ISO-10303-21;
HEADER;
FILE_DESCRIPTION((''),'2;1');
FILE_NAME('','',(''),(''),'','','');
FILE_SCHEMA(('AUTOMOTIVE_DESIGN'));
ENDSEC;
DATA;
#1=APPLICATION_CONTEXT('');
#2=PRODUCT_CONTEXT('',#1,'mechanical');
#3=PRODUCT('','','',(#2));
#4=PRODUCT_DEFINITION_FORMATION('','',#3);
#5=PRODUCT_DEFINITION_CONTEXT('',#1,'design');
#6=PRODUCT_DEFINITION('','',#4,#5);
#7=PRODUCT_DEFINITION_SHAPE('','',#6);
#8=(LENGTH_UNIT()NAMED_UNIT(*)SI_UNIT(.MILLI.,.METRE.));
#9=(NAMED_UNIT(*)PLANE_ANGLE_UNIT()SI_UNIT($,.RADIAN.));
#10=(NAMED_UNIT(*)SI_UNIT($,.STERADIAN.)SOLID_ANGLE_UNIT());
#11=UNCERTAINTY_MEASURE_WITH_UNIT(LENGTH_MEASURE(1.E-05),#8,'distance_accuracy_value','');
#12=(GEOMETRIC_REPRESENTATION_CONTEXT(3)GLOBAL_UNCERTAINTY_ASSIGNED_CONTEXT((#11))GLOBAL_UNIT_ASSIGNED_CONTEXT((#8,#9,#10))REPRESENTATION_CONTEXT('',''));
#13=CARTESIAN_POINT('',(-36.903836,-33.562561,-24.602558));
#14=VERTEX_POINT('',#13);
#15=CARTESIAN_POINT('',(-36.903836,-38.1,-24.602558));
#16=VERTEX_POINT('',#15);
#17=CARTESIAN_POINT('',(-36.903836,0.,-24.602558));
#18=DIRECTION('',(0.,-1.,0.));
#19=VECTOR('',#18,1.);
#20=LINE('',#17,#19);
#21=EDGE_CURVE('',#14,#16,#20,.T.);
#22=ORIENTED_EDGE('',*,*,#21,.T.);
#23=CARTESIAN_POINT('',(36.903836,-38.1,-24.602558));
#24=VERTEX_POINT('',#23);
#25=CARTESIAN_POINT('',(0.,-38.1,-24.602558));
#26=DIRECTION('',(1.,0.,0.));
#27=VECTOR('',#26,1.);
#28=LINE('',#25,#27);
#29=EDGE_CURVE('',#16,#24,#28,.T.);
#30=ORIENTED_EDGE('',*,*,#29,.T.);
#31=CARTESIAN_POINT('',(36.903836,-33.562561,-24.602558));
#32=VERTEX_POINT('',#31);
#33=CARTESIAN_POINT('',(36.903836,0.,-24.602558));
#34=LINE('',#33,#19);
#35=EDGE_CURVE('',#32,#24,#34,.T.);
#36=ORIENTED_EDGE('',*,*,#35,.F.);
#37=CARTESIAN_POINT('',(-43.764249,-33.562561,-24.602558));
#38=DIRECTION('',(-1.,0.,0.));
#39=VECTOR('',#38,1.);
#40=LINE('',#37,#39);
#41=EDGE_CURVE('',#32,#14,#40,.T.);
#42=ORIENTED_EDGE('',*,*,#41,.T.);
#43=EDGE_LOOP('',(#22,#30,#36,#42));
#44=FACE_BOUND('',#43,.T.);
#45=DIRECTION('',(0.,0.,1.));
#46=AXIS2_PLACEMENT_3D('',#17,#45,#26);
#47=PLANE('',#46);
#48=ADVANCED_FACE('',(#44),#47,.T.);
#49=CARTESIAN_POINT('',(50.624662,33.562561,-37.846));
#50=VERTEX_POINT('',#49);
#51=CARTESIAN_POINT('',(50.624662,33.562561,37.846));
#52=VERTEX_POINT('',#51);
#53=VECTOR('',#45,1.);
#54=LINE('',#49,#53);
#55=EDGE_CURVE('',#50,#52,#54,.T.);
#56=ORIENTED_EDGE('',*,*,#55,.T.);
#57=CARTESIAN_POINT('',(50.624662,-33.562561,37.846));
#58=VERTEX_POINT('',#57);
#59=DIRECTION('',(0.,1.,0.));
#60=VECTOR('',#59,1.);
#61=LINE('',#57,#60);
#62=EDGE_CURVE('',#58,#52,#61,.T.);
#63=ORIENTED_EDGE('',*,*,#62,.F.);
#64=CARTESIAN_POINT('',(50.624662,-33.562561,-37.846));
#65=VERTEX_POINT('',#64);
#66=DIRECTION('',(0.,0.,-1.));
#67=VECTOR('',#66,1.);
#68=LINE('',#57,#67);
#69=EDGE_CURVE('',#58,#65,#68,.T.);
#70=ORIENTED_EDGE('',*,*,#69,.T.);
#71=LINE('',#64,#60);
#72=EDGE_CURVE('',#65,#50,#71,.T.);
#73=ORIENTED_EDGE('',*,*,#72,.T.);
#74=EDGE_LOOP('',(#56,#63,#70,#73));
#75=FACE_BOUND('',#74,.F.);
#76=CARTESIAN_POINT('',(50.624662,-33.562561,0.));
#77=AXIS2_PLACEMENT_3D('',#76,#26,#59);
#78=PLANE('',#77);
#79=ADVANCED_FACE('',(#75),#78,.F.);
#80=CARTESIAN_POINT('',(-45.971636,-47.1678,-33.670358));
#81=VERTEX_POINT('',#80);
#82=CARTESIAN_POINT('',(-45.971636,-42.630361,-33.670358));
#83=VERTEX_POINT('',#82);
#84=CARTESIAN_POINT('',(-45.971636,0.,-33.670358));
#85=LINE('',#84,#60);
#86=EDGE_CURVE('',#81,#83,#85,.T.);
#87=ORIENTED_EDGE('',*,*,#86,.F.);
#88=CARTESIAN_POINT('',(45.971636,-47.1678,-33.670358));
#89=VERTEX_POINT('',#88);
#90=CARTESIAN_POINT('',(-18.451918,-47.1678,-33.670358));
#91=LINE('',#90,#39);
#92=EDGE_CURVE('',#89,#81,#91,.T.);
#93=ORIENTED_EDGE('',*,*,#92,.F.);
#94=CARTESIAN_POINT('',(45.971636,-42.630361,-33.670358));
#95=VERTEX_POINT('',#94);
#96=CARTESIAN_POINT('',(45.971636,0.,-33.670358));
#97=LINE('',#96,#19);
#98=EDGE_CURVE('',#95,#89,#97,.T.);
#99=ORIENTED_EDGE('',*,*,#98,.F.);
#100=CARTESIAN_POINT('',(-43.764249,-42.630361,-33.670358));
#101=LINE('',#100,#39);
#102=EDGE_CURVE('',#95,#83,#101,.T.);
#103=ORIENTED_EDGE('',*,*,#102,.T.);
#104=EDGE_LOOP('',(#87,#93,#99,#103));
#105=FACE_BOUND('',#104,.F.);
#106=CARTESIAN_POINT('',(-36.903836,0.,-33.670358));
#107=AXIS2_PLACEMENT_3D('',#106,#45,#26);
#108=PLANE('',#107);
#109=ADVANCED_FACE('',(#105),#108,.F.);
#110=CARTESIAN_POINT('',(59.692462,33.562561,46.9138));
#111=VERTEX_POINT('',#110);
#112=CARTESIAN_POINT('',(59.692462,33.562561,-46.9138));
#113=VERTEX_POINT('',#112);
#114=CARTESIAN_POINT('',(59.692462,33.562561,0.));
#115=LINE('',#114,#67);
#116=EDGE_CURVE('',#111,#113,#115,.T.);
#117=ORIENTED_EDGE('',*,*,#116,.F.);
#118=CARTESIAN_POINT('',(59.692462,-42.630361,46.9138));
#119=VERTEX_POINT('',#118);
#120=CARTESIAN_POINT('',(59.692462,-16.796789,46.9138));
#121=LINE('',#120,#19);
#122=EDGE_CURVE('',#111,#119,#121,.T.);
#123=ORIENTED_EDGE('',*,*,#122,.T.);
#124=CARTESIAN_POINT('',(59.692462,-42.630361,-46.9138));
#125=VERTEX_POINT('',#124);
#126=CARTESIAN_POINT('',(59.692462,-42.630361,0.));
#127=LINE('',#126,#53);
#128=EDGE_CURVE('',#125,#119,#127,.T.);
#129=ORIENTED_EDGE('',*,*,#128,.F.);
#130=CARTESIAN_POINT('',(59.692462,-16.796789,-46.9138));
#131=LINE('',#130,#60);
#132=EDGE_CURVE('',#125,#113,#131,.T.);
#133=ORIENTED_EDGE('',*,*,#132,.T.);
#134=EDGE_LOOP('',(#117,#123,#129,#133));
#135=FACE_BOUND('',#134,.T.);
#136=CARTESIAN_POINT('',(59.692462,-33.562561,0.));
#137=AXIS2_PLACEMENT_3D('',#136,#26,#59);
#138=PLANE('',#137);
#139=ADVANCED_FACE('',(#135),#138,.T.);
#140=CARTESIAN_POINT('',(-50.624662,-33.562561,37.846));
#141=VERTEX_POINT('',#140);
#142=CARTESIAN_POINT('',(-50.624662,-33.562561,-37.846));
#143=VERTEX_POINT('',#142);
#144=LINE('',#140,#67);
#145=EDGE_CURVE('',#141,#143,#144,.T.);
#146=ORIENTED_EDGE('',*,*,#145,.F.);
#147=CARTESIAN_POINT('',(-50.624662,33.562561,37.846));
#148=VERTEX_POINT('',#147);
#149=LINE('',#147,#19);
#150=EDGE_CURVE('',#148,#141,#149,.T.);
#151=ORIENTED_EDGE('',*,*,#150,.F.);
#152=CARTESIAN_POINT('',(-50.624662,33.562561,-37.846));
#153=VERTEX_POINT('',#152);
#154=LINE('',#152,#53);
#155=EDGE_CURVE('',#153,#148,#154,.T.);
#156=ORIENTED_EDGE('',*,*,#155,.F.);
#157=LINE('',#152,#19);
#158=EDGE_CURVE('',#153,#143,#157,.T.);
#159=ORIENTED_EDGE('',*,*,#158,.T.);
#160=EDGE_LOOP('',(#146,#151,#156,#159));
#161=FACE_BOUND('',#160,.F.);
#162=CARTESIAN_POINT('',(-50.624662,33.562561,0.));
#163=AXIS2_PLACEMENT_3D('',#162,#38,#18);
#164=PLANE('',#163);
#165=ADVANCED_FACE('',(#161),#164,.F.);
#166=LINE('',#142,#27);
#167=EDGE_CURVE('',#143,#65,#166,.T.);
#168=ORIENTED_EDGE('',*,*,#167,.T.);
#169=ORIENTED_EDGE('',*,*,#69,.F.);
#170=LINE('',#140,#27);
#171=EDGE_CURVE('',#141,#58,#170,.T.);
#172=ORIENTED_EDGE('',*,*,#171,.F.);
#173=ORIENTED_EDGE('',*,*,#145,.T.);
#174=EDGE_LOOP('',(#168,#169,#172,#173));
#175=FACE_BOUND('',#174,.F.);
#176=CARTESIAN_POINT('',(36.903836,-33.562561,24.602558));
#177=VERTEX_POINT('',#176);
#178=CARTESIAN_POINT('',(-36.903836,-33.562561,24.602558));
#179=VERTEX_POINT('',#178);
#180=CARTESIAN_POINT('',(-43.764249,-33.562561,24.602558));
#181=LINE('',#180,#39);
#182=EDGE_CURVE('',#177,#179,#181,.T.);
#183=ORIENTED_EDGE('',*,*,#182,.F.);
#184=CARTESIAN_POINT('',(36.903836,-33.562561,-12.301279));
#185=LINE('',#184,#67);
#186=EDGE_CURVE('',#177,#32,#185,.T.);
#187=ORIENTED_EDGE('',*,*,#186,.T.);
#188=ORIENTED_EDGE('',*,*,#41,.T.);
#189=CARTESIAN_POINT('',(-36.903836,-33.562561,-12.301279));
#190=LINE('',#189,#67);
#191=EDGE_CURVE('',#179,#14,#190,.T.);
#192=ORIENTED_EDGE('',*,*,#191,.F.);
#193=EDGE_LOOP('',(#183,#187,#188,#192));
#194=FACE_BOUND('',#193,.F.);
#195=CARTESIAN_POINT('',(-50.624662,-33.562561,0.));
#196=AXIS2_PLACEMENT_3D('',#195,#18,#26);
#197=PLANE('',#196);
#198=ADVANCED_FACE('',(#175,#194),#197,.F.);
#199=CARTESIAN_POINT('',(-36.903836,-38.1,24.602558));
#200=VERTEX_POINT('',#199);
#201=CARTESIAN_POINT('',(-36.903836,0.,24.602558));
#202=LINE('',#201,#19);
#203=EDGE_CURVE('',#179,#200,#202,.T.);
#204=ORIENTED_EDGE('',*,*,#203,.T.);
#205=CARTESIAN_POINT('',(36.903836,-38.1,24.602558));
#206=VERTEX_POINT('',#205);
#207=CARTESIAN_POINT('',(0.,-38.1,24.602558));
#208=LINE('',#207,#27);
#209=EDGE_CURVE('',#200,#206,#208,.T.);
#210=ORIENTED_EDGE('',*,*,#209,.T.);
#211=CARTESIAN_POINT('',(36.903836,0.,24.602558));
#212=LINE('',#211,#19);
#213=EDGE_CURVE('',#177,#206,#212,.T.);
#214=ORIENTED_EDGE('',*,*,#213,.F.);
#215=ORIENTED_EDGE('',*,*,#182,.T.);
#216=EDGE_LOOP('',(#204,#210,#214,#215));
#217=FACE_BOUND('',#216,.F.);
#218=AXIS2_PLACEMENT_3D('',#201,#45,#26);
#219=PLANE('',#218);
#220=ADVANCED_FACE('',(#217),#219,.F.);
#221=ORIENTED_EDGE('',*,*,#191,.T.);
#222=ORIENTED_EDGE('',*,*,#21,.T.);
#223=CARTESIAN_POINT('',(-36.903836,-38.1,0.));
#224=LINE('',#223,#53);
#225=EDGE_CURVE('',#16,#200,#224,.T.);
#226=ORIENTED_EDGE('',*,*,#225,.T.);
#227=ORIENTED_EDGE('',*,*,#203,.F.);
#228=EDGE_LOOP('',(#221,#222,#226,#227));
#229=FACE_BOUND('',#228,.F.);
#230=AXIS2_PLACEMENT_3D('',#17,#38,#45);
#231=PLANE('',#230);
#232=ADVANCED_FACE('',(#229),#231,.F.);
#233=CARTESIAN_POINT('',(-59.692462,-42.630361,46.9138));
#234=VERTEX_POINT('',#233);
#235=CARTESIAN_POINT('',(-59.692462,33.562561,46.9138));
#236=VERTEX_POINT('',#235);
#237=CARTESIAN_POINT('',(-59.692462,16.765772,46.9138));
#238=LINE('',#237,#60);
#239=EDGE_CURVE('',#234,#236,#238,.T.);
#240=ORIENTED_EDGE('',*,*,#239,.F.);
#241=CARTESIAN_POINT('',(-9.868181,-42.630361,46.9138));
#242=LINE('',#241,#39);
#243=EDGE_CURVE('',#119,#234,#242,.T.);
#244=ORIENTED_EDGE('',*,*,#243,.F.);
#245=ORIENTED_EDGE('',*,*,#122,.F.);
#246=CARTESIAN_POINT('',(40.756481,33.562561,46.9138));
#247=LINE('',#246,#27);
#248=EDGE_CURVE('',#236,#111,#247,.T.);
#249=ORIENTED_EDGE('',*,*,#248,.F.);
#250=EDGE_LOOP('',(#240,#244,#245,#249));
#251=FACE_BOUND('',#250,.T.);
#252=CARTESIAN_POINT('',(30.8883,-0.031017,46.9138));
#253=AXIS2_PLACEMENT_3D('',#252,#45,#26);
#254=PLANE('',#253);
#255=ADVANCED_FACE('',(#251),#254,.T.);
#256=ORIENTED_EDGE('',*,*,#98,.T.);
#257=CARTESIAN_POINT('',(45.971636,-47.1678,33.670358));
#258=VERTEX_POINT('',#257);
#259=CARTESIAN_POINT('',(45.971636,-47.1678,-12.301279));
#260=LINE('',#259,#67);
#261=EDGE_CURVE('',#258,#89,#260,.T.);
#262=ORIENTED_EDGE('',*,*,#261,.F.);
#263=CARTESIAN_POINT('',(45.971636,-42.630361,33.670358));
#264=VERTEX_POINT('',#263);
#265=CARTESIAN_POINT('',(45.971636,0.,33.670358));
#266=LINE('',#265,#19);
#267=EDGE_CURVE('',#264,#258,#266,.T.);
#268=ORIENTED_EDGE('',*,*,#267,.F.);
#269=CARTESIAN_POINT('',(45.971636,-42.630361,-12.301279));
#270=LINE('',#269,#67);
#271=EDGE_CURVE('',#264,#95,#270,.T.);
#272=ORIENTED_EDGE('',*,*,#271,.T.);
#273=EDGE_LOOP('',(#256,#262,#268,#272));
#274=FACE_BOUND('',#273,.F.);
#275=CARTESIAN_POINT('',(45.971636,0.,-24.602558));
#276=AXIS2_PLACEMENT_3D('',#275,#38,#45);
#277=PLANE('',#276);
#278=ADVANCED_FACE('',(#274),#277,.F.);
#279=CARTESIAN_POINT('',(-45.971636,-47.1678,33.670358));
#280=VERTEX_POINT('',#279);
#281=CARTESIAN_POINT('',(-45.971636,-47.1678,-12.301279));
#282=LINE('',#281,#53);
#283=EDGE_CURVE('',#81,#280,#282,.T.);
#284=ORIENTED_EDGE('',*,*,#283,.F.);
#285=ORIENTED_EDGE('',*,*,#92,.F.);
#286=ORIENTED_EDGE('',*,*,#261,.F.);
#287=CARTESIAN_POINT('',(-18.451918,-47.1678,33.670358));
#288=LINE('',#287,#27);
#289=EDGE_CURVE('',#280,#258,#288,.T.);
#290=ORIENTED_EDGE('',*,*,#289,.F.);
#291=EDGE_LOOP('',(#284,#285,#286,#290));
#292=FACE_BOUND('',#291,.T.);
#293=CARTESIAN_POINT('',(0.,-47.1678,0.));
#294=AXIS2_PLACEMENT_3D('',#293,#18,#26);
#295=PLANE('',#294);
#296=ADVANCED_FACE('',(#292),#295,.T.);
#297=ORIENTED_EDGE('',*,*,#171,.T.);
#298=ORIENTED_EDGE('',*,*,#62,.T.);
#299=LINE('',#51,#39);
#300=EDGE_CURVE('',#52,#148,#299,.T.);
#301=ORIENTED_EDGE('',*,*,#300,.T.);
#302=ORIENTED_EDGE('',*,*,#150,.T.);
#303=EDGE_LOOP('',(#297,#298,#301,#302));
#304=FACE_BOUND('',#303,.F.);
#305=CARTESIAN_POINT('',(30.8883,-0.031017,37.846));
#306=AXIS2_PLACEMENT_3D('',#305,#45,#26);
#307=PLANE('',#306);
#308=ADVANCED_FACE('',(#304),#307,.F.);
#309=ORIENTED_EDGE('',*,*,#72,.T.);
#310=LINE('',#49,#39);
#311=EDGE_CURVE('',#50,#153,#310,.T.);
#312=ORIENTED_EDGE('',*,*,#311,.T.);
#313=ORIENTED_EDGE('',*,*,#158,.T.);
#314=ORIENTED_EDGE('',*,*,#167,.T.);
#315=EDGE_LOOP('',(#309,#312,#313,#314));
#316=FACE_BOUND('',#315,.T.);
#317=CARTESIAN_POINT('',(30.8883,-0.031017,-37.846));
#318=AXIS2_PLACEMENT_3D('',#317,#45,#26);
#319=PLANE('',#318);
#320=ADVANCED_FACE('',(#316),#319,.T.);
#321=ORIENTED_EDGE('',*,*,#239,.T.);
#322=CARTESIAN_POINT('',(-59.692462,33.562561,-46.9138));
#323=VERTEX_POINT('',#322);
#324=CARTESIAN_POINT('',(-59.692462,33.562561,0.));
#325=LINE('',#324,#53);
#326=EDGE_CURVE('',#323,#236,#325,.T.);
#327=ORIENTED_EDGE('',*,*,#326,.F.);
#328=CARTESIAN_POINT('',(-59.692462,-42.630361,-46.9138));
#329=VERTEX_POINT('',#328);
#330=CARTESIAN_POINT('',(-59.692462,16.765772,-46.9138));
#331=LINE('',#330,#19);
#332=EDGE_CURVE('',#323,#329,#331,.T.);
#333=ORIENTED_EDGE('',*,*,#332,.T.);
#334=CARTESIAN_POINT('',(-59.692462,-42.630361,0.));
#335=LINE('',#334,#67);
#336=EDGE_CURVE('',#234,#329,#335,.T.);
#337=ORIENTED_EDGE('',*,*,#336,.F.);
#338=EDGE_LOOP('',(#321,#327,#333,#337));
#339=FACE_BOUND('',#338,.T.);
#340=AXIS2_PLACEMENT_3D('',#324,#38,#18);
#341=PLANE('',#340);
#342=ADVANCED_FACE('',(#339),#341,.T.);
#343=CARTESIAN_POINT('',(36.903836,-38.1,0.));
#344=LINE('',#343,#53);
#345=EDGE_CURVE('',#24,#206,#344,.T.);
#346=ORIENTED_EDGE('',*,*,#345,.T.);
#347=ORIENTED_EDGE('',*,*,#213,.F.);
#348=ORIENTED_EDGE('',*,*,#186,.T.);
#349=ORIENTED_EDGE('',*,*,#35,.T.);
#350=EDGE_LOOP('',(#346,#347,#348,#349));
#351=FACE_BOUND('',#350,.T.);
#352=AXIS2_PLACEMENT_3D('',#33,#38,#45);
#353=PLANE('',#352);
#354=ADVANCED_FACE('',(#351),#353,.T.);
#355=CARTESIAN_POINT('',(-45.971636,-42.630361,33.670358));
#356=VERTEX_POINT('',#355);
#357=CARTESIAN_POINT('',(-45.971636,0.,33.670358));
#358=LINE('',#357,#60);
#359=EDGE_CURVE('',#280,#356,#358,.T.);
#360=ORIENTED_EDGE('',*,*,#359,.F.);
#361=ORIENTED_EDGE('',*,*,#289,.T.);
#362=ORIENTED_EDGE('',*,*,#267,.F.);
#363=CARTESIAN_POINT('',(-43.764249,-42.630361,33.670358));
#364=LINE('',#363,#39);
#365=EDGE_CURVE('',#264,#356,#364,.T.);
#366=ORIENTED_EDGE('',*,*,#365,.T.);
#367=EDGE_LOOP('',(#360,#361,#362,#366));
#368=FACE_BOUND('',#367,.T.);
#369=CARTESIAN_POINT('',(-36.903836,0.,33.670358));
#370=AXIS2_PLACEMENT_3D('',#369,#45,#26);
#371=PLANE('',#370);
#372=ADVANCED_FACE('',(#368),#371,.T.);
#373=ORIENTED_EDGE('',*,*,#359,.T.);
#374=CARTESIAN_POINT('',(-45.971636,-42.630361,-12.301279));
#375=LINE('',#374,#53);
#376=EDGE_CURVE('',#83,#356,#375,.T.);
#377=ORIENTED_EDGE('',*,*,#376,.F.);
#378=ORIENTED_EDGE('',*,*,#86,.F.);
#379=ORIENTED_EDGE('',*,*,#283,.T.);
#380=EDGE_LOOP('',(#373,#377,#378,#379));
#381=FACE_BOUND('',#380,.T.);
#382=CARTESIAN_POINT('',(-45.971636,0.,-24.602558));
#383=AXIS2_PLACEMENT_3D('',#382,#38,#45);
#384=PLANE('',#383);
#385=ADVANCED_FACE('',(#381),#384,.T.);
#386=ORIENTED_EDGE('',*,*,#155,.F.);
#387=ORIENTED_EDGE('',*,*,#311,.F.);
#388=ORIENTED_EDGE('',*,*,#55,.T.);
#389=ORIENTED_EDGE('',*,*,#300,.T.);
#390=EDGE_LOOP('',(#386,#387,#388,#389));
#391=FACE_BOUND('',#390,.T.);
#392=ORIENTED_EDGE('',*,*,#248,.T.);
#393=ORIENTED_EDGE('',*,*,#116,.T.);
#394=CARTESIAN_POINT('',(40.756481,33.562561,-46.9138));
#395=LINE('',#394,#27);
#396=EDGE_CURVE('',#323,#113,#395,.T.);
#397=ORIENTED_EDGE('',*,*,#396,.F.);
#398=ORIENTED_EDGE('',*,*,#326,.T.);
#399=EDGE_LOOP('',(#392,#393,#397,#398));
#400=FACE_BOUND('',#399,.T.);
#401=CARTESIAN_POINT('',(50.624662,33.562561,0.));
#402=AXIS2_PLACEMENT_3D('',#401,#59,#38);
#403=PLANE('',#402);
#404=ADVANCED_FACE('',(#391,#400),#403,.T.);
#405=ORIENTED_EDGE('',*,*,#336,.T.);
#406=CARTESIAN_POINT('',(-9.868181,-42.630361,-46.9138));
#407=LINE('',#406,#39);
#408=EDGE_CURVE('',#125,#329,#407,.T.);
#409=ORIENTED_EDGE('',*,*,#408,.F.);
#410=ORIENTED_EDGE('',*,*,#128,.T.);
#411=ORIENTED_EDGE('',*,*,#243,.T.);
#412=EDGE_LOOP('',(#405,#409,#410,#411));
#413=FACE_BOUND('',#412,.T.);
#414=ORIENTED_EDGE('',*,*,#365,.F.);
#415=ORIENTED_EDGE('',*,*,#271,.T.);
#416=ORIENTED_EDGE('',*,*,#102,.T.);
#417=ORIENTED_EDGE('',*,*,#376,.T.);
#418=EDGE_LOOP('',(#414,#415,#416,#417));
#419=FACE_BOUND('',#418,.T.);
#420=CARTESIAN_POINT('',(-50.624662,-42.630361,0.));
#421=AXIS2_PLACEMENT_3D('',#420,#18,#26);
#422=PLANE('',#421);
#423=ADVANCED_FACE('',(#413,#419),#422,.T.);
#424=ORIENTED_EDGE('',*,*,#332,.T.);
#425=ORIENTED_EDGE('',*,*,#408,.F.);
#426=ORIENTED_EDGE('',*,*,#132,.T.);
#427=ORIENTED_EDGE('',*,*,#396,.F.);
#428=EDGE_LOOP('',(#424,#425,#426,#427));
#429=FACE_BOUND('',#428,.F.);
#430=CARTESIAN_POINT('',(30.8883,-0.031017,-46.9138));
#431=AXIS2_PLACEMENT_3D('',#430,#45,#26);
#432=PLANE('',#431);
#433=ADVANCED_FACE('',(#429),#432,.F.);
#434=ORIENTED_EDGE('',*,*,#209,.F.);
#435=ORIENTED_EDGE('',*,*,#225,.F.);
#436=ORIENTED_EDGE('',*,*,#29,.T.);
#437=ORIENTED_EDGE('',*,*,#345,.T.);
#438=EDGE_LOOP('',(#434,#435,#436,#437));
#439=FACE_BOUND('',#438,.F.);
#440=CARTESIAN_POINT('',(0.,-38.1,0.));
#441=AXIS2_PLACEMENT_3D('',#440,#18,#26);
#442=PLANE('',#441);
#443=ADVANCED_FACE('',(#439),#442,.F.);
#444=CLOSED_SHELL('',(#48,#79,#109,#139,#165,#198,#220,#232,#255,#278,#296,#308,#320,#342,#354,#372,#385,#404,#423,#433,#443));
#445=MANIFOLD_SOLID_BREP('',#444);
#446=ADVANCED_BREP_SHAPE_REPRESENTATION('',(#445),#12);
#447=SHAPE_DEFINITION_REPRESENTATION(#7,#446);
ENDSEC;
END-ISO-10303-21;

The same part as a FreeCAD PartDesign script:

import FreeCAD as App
import Part
import Sketcher
from FreeCAD import Vector
Q = App.Units.Quantity


def faces_at(feature, points):
    """Names of the faces that lie closest to the given points."""
    faces = feature.Shape.Faces
    near = lambda p: min(range(len(faces)), key=lambda i: faces[i].distToShape(Part.Vertex(*p))[0])
    return sorted({f"Face{near(p) + 1}" for p in points})

doc = App.newDocument("Part")
body = doc.addObject("PartDesign::Body", "Body")

# Sketch on XY plane
sketch1 = body.newObject("Sketcher::SketchObject", "Sketch")
sketch1.AttachmentSupport = (doc.getObject("XY_Plane"), [""])
sketch1.MapMode = "FlatFace"
sketch1.addGeometry([
    Part.LineSegment(Vector(50.624662, -33.562561, 0), Vector(50.624662, 33.562561, 0)),
    Part.LineSegment(Vector(50.624662, 33.562561, 0), Vector(-50.624662, 33.562561, 0)),
    Part.LineSegment(Vector(-50.624662, 33.562561, 0), Vector(-50.624662, -33.562561, 0)),
    Part.LineSegment(Vector(-50.624662, -33.562561, 0), Vector(50.624662, -33.562561, 0)),
], False)
sketch1.addConstraint([
    Sketcher.Constraint("Coincident", 0, 2, 1, 1),
    Sketcher.Constraint("Coincident", 1, 2, 2, 1),
    Sketcher.Constraint("Coincident", 2, 2, 3, 1),
    Sketcher.Constraint("Coincident", 3, 2, 0, 1),
    Sketcher.Constraint("Vertical", 0),
    Sketcher.Constraint("Horizontal", 1),
    Sketcher.Constraint("Vertical", 2),
    Sketcher.Constraint("Horizontal", 3),
    Sketcher.Constraint("Symmetric", 0, 2, 2, 2, -1, 1),
    Sketcher.Constraint("DistanceX", 1, 2, 1, 1, 101.249323),
    Sketcher.Constraint("DistanceY", 0, 1, 0, 2, 67.125123),
])
pad1 = body.newObject("PartDesign::Pad", "Pad")
pad1.Profile = sketch1
pad1.Length = Q("2.98 in")
pad1.Midplane = True

# Sketch on XZ plane
sketch2 = body.newObject("Sketcher::SketchObject", "Sketch001")
sketch2.AttachmentSupport = (doc.getObject("XZ_Plane"), [""])
sketch2.MapMode = "FlatFace"
sketch2.addGeometry([
    Part.LineSegment(Vector(-36.903836, 24.602558, 0), Vector(-36.903836, -24.602558, 0)),
    Part.LineSegment(Vector(-36.903836, -24.602558, 0), Vector(36.903836, -24.602558, 0)),
    Part.LineSegment(Vector(36.903836, -24.602558, 0), Vector(36.903836, 24.602558, 0)),
    Part.LineSegment(Vector(36.903836, 24.602558, 0), Vector(-36.903836, 24.602558, 0)),
], False)
sketch2.addConstraint([
    Sketcher.Constraint("Coincident", 0, 2, 1, 1),
    Sketcher.Constraint("Coincident", 1, 2, 2, 1),
    Sketcher.Constraint("Coincident", 2, 2, 3, 1),
    Sketcher.Constraint("Coincident", 3, 2, 0, 1),
    Sketcher.Constraint("Vertical", 0),
    Sketcher.Constraint("Horizontal", 1),
    Sketcher.Constraint("Vertical", 2),
    Sketcher.Constraint("Horizontal", 3),
    Sketcher.Constraint("Symmetric", 0, 2, 2, 2, -1, 1),
    Sketcher.Constraint("DistanceX", 1, 1, 1, 2, 73.807672),
    Sketcher.Constraint("DistanceY", 0, 2, 0, 1, 49.205117),
])
pad2 = body.newObject("PartDesign::Pad", "Pad001")
pad2.Profile = sketch2
pad2.Length = Q("1.5 in")
doc.recompute()

thickness = body.newObject("PartDesign::Thickness", "Thickness")
thickness.Base = (pad2, faces_at(pad2, [(0, 33.563, 0)]))
thickness.Value = Q("0.357 in")
thickness.Reversed = False
thickness.Join = "Intersection"

doc.recompute()
